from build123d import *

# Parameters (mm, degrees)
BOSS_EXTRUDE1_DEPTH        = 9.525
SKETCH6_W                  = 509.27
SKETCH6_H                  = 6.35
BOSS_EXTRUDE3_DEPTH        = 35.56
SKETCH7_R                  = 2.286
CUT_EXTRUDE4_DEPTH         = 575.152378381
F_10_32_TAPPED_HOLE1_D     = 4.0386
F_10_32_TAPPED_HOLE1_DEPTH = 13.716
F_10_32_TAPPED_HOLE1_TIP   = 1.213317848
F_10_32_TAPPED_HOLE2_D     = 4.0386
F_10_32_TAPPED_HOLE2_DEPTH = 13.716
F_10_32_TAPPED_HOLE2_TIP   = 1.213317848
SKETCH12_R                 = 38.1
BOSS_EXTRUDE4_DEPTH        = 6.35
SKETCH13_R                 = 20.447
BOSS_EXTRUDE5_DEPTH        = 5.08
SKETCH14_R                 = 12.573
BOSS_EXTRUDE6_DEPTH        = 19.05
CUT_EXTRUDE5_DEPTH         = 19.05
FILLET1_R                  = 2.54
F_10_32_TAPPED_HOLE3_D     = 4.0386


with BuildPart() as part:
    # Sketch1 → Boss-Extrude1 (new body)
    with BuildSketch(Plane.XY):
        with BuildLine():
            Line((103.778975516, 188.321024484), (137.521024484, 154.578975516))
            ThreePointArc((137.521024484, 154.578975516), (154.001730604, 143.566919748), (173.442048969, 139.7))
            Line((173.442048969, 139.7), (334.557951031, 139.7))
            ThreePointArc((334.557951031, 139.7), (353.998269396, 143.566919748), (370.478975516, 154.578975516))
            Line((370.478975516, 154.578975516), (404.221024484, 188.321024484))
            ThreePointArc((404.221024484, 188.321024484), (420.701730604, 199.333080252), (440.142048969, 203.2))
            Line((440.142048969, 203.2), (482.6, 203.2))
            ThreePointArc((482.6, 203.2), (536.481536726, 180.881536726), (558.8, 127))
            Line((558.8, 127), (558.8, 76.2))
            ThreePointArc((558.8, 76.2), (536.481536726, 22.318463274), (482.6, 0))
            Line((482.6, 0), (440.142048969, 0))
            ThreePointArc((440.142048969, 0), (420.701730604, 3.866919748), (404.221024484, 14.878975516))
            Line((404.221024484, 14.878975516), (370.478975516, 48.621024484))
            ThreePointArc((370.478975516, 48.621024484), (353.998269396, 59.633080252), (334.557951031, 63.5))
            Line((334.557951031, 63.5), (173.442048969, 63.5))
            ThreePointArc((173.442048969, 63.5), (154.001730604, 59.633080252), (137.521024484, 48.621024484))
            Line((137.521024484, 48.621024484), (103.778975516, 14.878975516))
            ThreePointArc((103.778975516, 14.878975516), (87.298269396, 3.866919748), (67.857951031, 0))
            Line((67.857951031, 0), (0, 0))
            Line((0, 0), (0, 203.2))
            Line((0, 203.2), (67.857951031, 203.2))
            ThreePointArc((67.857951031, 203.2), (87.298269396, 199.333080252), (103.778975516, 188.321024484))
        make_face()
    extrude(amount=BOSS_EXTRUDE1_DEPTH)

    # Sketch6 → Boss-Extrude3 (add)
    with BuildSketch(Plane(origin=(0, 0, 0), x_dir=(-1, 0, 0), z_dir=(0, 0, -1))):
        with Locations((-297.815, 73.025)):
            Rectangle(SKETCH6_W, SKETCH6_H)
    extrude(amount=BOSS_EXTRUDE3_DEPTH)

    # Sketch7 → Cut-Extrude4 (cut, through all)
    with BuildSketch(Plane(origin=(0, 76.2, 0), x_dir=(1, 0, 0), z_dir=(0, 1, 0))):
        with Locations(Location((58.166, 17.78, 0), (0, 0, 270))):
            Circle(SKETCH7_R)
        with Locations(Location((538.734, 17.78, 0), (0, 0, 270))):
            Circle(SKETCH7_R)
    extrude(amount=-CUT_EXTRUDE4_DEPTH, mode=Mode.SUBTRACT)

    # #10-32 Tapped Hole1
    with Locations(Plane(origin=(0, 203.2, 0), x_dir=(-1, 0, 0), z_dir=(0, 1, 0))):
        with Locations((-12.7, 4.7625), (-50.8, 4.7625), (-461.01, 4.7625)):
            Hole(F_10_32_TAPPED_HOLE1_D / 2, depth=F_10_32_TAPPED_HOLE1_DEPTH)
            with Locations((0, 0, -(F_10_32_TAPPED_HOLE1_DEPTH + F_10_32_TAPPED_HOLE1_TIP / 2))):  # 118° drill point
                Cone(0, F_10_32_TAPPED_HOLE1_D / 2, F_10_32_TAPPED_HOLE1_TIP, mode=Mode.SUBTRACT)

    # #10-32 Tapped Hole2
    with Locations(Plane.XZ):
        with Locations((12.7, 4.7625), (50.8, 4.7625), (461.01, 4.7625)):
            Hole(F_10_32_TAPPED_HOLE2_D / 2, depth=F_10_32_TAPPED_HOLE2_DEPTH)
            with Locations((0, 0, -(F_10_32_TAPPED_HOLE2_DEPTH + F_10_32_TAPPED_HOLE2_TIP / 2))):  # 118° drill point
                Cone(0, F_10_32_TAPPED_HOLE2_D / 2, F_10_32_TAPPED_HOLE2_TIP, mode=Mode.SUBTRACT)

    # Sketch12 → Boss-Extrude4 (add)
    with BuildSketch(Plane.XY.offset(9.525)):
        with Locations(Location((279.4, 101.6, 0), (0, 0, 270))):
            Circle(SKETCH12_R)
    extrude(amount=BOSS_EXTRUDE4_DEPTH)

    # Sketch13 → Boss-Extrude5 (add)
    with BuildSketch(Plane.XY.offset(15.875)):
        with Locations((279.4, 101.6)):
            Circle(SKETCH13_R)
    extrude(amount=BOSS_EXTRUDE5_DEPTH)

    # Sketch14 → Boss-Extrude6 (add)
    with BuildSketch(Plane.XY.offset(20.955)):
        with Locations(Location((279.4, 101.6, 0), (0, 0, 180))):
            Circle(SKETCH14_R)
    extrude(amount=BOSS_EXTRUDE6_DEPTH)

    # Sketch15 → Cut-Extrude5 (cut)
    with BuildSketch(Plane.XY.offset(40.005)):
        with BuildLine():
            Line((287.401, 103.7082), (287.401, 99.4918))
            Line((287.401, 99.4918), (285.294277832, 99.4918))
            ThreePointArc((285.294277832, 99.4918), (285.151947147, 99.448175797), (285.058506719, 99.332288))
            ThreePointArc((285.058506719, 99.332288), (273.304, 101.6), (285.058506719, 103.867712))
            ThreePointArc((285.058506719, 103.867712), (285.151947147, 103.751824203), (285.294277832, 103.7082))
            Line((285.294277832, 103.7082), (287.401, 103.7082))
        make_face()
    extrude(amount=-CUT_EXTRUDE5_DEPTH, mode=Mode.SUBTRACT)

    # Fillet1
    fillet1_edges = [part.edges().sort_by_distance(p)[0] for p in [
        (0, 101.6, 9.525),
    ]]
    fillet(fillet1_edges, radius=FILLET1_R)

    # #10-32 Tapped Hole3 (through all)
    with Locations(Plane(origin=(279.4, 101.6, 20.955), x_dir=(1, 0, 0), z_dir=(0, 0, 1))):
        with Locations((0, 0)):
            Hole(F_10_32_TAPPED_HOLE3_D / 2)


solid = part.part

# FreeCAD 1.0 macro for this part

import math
import FreeCAD as App
import Part
import Sketcher
Q = App.Units.Quantity


def edges_at(feature, points):
    """Names of the edges that pass closest to the given points."""
    edges = feature.Shape.Edges
    near = lambda p: min(range(len(edges)), key=lambda i: edges[i].distToShape(Part.Vertex(*p))[0])
    return sorted({f"Edge{near(p) + 1}" for p in points})

doc = App.newDocument("Part")
body = doc.addObject("PartDesign::Body", "Body")

sketch1 = body.newObject("Sketcher::SketchObject", "Sketch")
sketch1.AttachmentSupport = (doc.getObject("XY_Plane"), [""])
sketch1.MapMode = "FlatFace"
sketch1.addGeometry(Part.LineSegment(App.Vector(138, 155, 0), App.Vector(104, 188, 0)), False)
sketch1.addGeometry(Part.ArcOfCircle(Part.Circle(App.Vector(68, 152, 0), App.Vector(0, 0, 1), 51), math.radians(45), math.radians(90)), False)
sketch1.addGeometry(Part.LineSegment(App.Vector(68, 203, 0), App.Vector(0, 203, 0)), False)
sketch1.addGeometry(Part.LineSegment(App.Vector(0, 203, 0), App.Vector(0, 0, 0)), False)
sketch1.addGeometry(Part.LineSegment(App.Vector(0, 0, 0), App.Vector(68, 0, 0)), False)
sketch1.addGeometry(Part.ArcOfCircle(Part.Circle(App.Vector(68, 51, 0), App.Vector(0, 0, 1), 51), math.radians(-90), math.radians(-45)), False)
sketch1.addGeometry(Part.LineSegment(App.Vector(104, 15, 0), App.Vector(138, 49, 0)), False)
sketch1.addGeometry(Part.ArcOfCircle(Part.Circle(App.Vector(173, 13, 0), App.Vector(0, 0, 1), 51), math.radians(90), math.radians(135)), False)
sketch1.addGeometry(Part.LineSegment(App.Vector(173, 64, 0), App.Vector(335, 64, 0)), False)
sketch1.addGeometry(Part.ArcOfCircle(Part.Circle(App.Vector(335, 13, 0), App.Vector(0, 0, 1), 51), math.radians(45), math.radians(90)), False)
sketch1.addGeometry(Part.LineSegment(App.Vector(370, 49, 0), App.Vector(404, 15, 0)), False)
sketch1.addGeometry(Part.ArcOfCircle(Part.Circle(App.Vector(440, 51, 0), App.Vector(0, 0, 1), 51), math.radians(-135), math.radians(-90)), False)
sketch1.addGeometry(Part.LineSegment(App.Vector(440, 0, 0), App.Vector(483, 0, 0)), False)
sketch1.addGeometry(Part.ArcOfCircle(Part.Circle(App.Vector(483, 76, 0), App.Vector(0, 0, 1), 76), math.radians(-90), math.radians(0)), False)
sketch1.addGeometry(Part.LineSegment(App.Vector(559, 76, 0), App.Vector(559, 127, 0)), False)
sketch1.addGeometry(Part.ArcOfCircle(Part.Circle(App.Vector(483, 127, 0), App.Vector(0, 0, 1), 76), math.radians(0), math.radians(90)), False)
sketch1.addGeometry(Part.LineSegment(App.Vector(483, 203, 0), App.Vector(440, 203, 0)), False)
sketch1.addGeometry(Part.ArcOfCircle(Part.Circle(App.Vector(440, 152, 0), App.Vector(0, 0, 1), 51), math.radians(90), math.radians(135)), False)
sketch1.addGeometry(Part.LineSegment(App.Vector(404, 188, 0), App.Vector(370, 155, 0)), False)
sketch1.addGeometry(Part.ArcOfCircle(Part.Circle(App.Vector(335, 190, 0), App.Vector(0, 0, 1), 51), math.radians(-90), math.radians(-45)), False)
sketch1.addGeometry(Part.LineSegment(App.Vector(335, 140, 0), App.Vector(173, 140, 0)), False)
sketch1.addGeometry(Part.ArcOfCircle(Part.Circle(App.Vector(173, 190, 0), App.Vector(0, 0, 1), 51), math.radians(-135), math.radians(-90)), False)
sketch1.addConstraint(Sketcher.Constraint("Tangent", 0, 2, 1, 1))
sketch1.addConstraint(Sketcher.Constraint("Tangent", 1, 2, 2, 1))
sketch1.addConstraint(Sketcher.Constraint("Coincident", 2, 2, 3, 1))
sketch1.addConstraint(Sketcher.Constraint("Coincident", 3, 2, 4, 1))
sketch1.addConstraint(Sketcher.Constraint("Tangent", 4, 2, 5, 1))
sketch1.addConstraint(Sketcher.Constraint("Tangent", 5, 2, 6, 1))
sketch1.addConstraint(Sketcher.Constraint("Tangent", 6, 2, 7, 2))
sketch1.addConstraint(Sketcher.Constraint("Tangent", 7, 1, 8, 1))
sketch1.addConstraint(Sketcher.Constraint("Tangent", 8, 2, 9, 2))
sketch1.addConstraint(Sketcher.Constraint("Tangent", 9, 1, 10, 1))
sketch1.addConstraint(Sketcher.Constraint("Tangent", 10, 2, 11, 1))
sketch1.addConstraint(Sketcher.Constraint("Tangent", 11, 2, 12, 1))
sketch1.addConstraint(Sketcher.Constraint("Tangent", 12, 2, 13, 1))
sketch1.addConstraint(Sketcher.Constraint("Tangent", 13, 2, 14, 1))
sketch1.addConstraint(Sketcher.Constraint("Tangent", 14, 2, 15, 1))
sketch1.addConstraint(Sketcher.Constraint("Tangent", 15, 2, 16, 1))
sketch1.addConstraint(Sketcher.Constraint("Tangent", 16, 2, 17, 1))
sketch1.addConstraint(Sketcher.Constraint("Tangent", 17, 2, 18, 1))
sketch1.addConstraint(Sketcher.Constraint("Tangent", 18, 2, 19, 2))
sketch1.addConstraint(Sketcher.Constraint("Tangent", 19, 1, 20, 1))
sketch1.addConstraint(Sketcher.Constraint("Tangent", 20, 2, 21, 2))
sketch1.addConstraint(Sketcher.Constraint("Tangent", 21, 1, 0, 1))
sketch1.addConstraint(Sketcher.Constraint("Horizontal", 2))
sketch1.addConstraint(Sketcher.Constraint("Vertical", 3))
sketch1.addConstraint(Sketcher.Constraint("Horizontal", 4))
sketch1.addConstraint(Sketcher.Constraint("Horizontal", 8))
sketch1.addConstraint(Sketcher.Constraint("Horizontal", 12))
sketch1.addConstraint(Sketcher.Constraint("Vertical", 14))
sketch1.addConstraint(Sketcher.Constraint("Horizontal", 16))
sketch1.addConstraint(Sketcher.Constraint("Horizontal", 20))
sketch1.addConstraint(Sketcher.Constraint("Coincident", 3, 2, -1, 1))
sketch1.addConstraint(Sketcher.Constraint("Equal", 1, 5))
sketch1.addConstraint(Sketcher.Constraint("Equal", 5, 7))
sketch1.addConstraint(Sketcher.Constraint("Equal", 7, 9))
sketch1.addConstraint(Sketcher.Constraint("Equal", 9, 11))
sketch1.addConstraint(Sketcher.Constraint("Equal", 13, 15))
sketch1.addConstraint(Sketcher.Constraint("Equal", 11, 17))
sketch1.addConstraint(Sketcher.Constraint("Equal", 17, 19))
sketch1.addConstraint(Sketcher.Constraint("Equal", 19, 21))
sketch1.addConstraint(Sketcher.Constraint("PointOnObject", 11, 2, -1))
sketch1.addConstraint(Sketcher.Constraint("Perpendicular", 0, 6))
sketch1.addConstraint(Sketcher.Constraint("Perpendicular", 6, 10))
sketch1.addConstraint(Sketcher.Constraint("Perpendicular", 10, 18))
sketch1.addConstraint(Sketcher.Constraint("Horizontal", 1, 3, 17, 3))
sketch1.addConstraint(Sketcher.Constraint("Horizontal", 6, 2, 9, 1))
sketch1.addConstraint(Sketcher.Constraint("Vertical", 1, 3, 5, 3))
sketch1.addConstraint(Sketcher.Constraint("Vertical", 11, 3, 17, 3))
sketch1.addConstraint(Sketcher.Constraint("Vertical", 9, 3, 19, 3))
sketch1.addConstraint(Sketcher.Constraint("Radius", 1, Q("2 in")))
sketch1.addConstraint(Sketcher.Constraint("Radius", 13, Q("3 in")))
sketch1.addConstraint(Sketcher.Constraint("DistanceY", 3, 2, 3, 1, Q("8 in")))
sketch1.addConstraint(Sketcher.Constraint("DistanceX", -1, 1, 13, 3, Q("19 in")))
sketch1.addConstraint(Sketcher.Constraint("DistanceY", 9, 3, 19, 3, Q("7 in")))
sketch1.addConstraint(Sketcher.Constraint("DistanceX", 5, 3, 9, 3, Q("10.5 in")))
sketch1.addConstraint(Sketcher.Constraint("DistanceX", 2, 2, 2, 1, Q("67.857951 mm")))
pad1 = body.newObject("PartDesign::Pad", "Pad")
pad1.Profile = sketch1
pad1.Length = Q("0.375 in")

sketch2 = body.newObject("Sketcher::SketchObject", "Sketch001")
sketch2.AttachmentSupport = (doc.getObject("XY_Plane"), [""])
sketch2.MapMode = "FlatFace"
sketch2.addGeometry(Part.LineSegment(App.Vector(552, 76, 0), App.Vector(552, 70, 0)), False)
sketch2.addGeometry(Part.LineSegment(App.Vector(552, 70, 0), App.Vector(43, 70, 0)), False)
sketch2.addGeometry(Part.LineSegment(App.Vector(43, 70, 0), App.Vector(43, 76, 0)), False)
sketch2.addGeometry(Part.LineSegment(App.Vector(43, 76, 0), App.Vector(552, 76, 0)), False)
sketch2.addConstraint(Sketcher.Constraint("Coincident", 0, 2, 1, 1))
sketch2.addConstraint(Sketcher.Constraint("Coincident", 1, 2, 2, 1))
sketch2.addConstraint(Sketcher.Constraint("Coincident", 2, 2, 3, 1))
sketch2.addConstraint(Sketcher.Constraint("Coincident", 3, 2, 0, 1))
sketch2.addConstraint(Sketcher.Constraint("Vertical", 0))
sketch2.addConstraint(Sketcher.Constraint("Horizontal", 1))
sketch2.addConstraint(Sketcher.Constraint("Vertical", 2))
sketch2.addConstraint(Sketcher.Constraint("Horizontal", 3))
sketch2.addConstraint(Sketcher.Constraint("DistanceY", -1, 1, 2, 2, Q("3 in")))
sketch2.addConstraint(Sketcher.Constraint("DistanceX", 1, 2, 1, 1, Q("20.05 in")))
sketch2.addConstraint(Sketcher.Constraint("DistanceY", 0, 2, 0, 1, Q("0.25 in")))
sketch2.addConstraint(Sketcher.Constraint("DistanceX", -1, 1, 1, 2, Q("1.7 in")))
pad2 = body.newObject("PartDesign::Pad", "Pad001")
pad2.Profile = sketch2
pad2.Length = Q("1.4 in")
pad2.Reversed = True

sketch3 = body.newObject("Sketcher::SketchObject", "Sketch002")
sketch3.AttachmentSupport = (doc.getObject("XZ_Plane"), [""])
sketch3.MapMode = "FlatFace"
sketch3.AttachmentOffset = App.Placement(App.Vector(0, 0, -3 * 25.4), App.Rotation())
sketch3.addGeometry(Part.Circle(App.Vector(58.2, -17.8, 0), App.Vector(0, 0, 1), 2.3), False)
sketch3.addGeometry(Part.Circle(App.Vector(538.7, -17.8, 0), App.Vector(0, 0, 1), 2.3), False)
sketch3.addConstraint(Sketcher.Constraint("Equal", 0, 1))
sketch3.addConstraint(Sketcher.Constraint("Horizontal", 0, 3, 1, 3))
sketch3.addConstraint(Sketcher.Constraint("Diameter", 0, Q("0.18 in")))
sketch3.addConstraint(Sketcher.Constraint("DistanceY", 0, 3, -1, 1, Q("0.7 in")))
sketch3.addConstraint(Sketcher.Constraint("DistanceX", -1, 1, 0, 3, Q("2.29 in")))
sketch3.addConstraint(Sketcher.Constraint("DistanceX", -1, 1, 1, 3, Q("21.21 in")))
pocket1 = body.newObject("PartDesign::Pocket", "Pocket")
pocket1.Profile = sketch3
pocket1.Type = "ThroughAll"
pocket1.Reversed = True

sketch4 = body.newObject("Sketcher::SketchObject", "Sketch003")
sketch4.AttachmentSupport = (doc.getObject("XZ_Plane"), [""])
sketch4.MapMode = "FlatFace"
sketch4.AttachmentOffset = App.Placement(App.Vector(0, 0, -8 * 25.4), App.Rotation())
sketch4.addGeometry(Part.Circle(App.Vector(12.7, 4.8, 0), App.Vector(0, 0, 1), 2), False)
sketch4.addGeometry(Part.Circle(App.Vector(50.8, 4.8, 0), App.Vector(0, 0, 1), 2), False)
sketch4.addGeometry(Part.Circle(App.Vector(461, 4.8, 0), App.Vector(0, 0, 1), 2), False)
sketch4.addConstraint(Sketcher.Constraint("Equal", 0, 1))
sketch4.addConstraint(Sketcher.Constraint("Equal", 1, 2))
sketch4.addConstraint(Sketcher.Constraint("Horizontal", 0, 3, 1, 3))
sketch4.addConstraint(Sketcher.Constraint("Horizontal", 1, 3, 2, 3))
sketch4.addConstraint(Sketcher.Constraint("Diameter", 0, Q("0.159 in")))
sketch4.addConstraint(Sketcher.Constraint("DistanceX", -1, 1, 1, 3, Q("2 in")))
sketch4.addConstraint(Sketcher.Constraint("DistanceX", -1, 1, 0, 3, Q("0.5 in")))
sketch4.addConstraint(Sketcher.Constraint("DistanceX", -1, 1, 2, 3, Q("18.15 in")))
sketch4.addConstraint(Sketcher.Constraint("DistanceY", -1, 1, 0, 3, Q("0.1875 in")))
doc.recompute()
hole = body.newObject("PartDesign::Hole", "Hole")
hole.Profile = sketch4
hole.ThreadType = "None"
hole.Diameter = Q("0.159 in")
hole.DepthType = "Dimension"
hole.Depth = Q("0.54 in")
hole.DrillPoint = "Angled"
hole.DrillPointAngle = 118
hole.Reversed = True

sketch5 = body.newObject("Sketcher::SketchObject", "Sketch004")
sketch5.AttachmentSupport = (doc.getObject("XZ_Plane"), [""])
sketch5.MapMode = "FlatFace"
sketch5.addGeometry(Part.Circle(App.Vector(12.7, 4.8, 0), App.Vector(0, 0, 1), 2), False)
sketch5.addGeometry(Part.Circle(App.Vector(50.8, 4.8, 0), App.Vector(0, 0, 1), 2), False)
sketch5.addGeometry(Part.Circle(App.Vector(461, 4.8, 0), App.Vector(0, 0, 1), 2), False)
sketch5.addConstraint(Sketcher.Constraint("Equal", 0, 1))
sketch5.addConstraint(Sketcher.Constraint("Equal", 1, 2))
sketch5.addConstraint(Sketcher.Constraint("Horizontal", 0, 3, 1, 3))
sketch5.addConstraint(Sketcher.Constraint("Horizontal", 1, 3, 2, 3))
sketch5.addConstraint(Sketcher.Constraint("Diameter", 0, Q("0.159 in")))
sketch5.addConstraint(Sketcher.Constraint("DistanceX", -1, 1, 1, 3, Q("2 in")))
sketch5.addConstraint(Sketcher.Constraint("DistanceX", -1, 1, 0, 3, Q("0.5 in")))
sketch5.addConstraint(Sketcher.Constraint("DistanceX", -1, 1, 2, 3, Q("18.15 in")))
sketch5.addConstraint(Sketcher.Constraint("DistanceY", -1, 1, 0, 3, Q("0.1875 in")))
doc.recompute()
hole2 = body.newObject("PartDesign::Hole", "Hole001")
hole2.Profile = sketch5
hole2.ThreadType = "None"
hole2.Diameter = Q("0.159 in")
hole2.DepthType = "Dimension"
hole2.Depth = Q("0.54 in")
hole2.DrillPoint = "Angled"
hole2.DrillPointAngle = 118

sketch6 = body.newObject("Sketcher::SketchObject", "Sketch005")
sketch6.AttachmentSupport = (doc.getObject("XY_Plane"), [""])
sketch6.MapMode = "FlatFace"
sketch6.AttachmentOffset = App.Placement(App.Vector(0, 0, 0.375 * 25.4), App.Rotation())
sketch6.addGeometry(Part.Circle(App.Vector(279, 102, 0), App.Vector(0, 0, 1), 38), False)
sketch6.addConstraint(Sketcher.Constraint("Diameter", 0, Q("3 in")))
sketch6.addConstraint(Sketcher.Constraint("DistanceX", -1, 1, 0, 3, Q("11 in")))
sketch6.addConstraint(Sketcher.Constraint("DistanceY", -1, 1, 0, 3, Q("4 in")))
pad3 = body.newObject("PartDesign::Pad", "Pad002")
pad3.Profile = sketch6
pad3.Length = Q("0.25 in")

sketch7 = body.newObject("Sketcher::SketchObject", "Sketch006")
sketch7.AttachmentSupport = (doc.getObject("XY_Plane"), [""])
sketch7.MapMode = "FlatFace"
sketch7.AttachmentOffset = App.Placement(App.Vector(0, 0, 0.625 * 25.4), App.Rotation())
sketch7.addGeometry(Part.Circle(App.Vector(279, 102, 0), App.Vector(0, 0, 1), 20), False)
sketch7.addConstraint(Sketcher.Constraint("Diameter", 0, Q("1.61 in")))
sketch7.addConstraint(Sketcher.Constraint("DistanceX", -1, 1, 0, 3, Q("11 in")))
sketch7.addConstraint(Sketcher.Constraint("DistanceY", -1, 1, 0, 3, Q("4 in")))
pad4 = body.newObject("PartDesign::Pad", "Pad003")
pad4.Profile = sketch7
pad4.Length = Q("0.2 in")

sketch8 = body.newObject("Sketcher::SketchObject", "Sketch007")
sketch8.AttachmentSupport = (doc.getObject("XY_Plane"), [""])
sketch8.MapMode = "FlatFace"
sketch8.AttachmentOffset = App.Placement(App.Vector(0, 0, 0.825 * 25.4), App.Rotation())
sketch8.addGeometry(Part.Circle(App.Vector(279, 102, 0), App.Vector(0, 0, 1), 13), False)
sketch8.addConstraint(Sketcher.Constraint("Diameter", 0, Q("0.99 in")))
sketch8.addConstraint(Sketcher.Constraint("DistanceX", -1, 1, 0, 3, Q("11 in")))
sketch8.addConstraint(Sketcher.Constraint("DistanceY", -1, 1, 0, 3, Q("4 in")))
pad5 = body.newObject("PartDesign::Pad", "Pad004")
pad5.Profile = sketch8
pad5.Length = Q("0.75 in")

sketch9 = body.newObject("Sketcher::SketchObject", "Sketch008")
sketch9.AttachmentSupport = (doc.getObject("XY_Plane"), [""])
sketch9.MapMode = "FlatFace"
sketch9.AttachmentOffset = App.Placement(App.Vector(0, 0, 1.575 * 25.4), App.Rotation())
sketch9.addGeometry(Part.LineSegment(App.Vector(287.4, 99.49, 0), App.Vector(287.4, 103.71, 0)), False)
sketch9.addGeometry(Part.LineSegment(App.Vector(287.4, 103.71, 0), App.Vector(285.29, 103.71, 0)), False)
sketch9.addGeometry(Part.ArcOfCircle(Part.Circle(App.Vector(285.29, 103.96, 0), App.Vector(0, 0, 1), 0.25), math.radians(-158), math.radians(-90)), False)
sketch9.addGeometry(Part.ArcOfCircle(Part.Circle(App.Vector(279.4, 101.6, 0), App.Vector(0, 0, 1), 6.1), math.radians(22), math.radians(338)), False)
sketch9.addGeometry(Part.ArcOfCircle(Part.Circle(App.Vector(285.29, 99.24, 0), App.Vector(0, 0, 1), 0.25), math.radians(90), math.radians(158)), False)
sketch9.addGeometry(Part.LineSegment(App.Vector(285.29, 99.49, 0), App.Vector(287.4, 99.49, 0)), False)
sketch9.addConstraint(Sketcher.Constraint("Coincident", 0, 2, 1, 1))
sketch9.addConstraint(Sketcher.Constraint("Tangent", 1, 2, 2, 2))
sketch9.addConstraint(Sketcher.Constraint("Tangent", 2, 1, 3, 1))
sketch9.addConstraint(Sketcher.Constraint("Tangent", 3, 2, 4, 2))
sketch9.addConstraint(Sketcher.Constraint("Tangent", 4, 1, 5, 1))
sketch9.addConstraint(Sketcher.Constraint("Coincident", 5, 2, 0, 1))
sketch9.addConstraint(Sketcher.Constraint("Vertical", 0))
sketch9.addConstraint(Sketcher.Constraint("Horizontal", 1))
sketch9.addConstraint(Sketcher.Constraint("Horizontal", 5))
sketch9.addConstraint(Sketcher.Constraint("Equal", 2, 4))
sketch9.addConstraint(Sketcher.Constraint("Vertical", 2, 3, 4, 3))
sketch9.addConstraint(Sketcher.Constraint("Radius", 2, Q("0.01 in")))
sketch9.addConstraint(Sketcher.Constraint("Radius", 3, Q("0.24 in")))
sketch9.addConstraint(Sketcher.Constraint("DistanceX", -1, 1, 3, 3, Q("11 in")))
sketch9.addConstraint(Sketcher.Constraint("DistanceY", -1, 1, 3, 3, Q("4 in")))
sketch9.addConstraint(Sketcher.Constraint("DistanceY", 0, 1, 0, 2, Q("0.166 in")))
sketch9.addConstraint(Sketcher.Constraint("DistanceX", -1, 1, 0, 2, Q("11.315 in")))
pocket2 = body.newObject("PartDesign::Pocket", "Pocket001")
pocket2.Profile = sketch9
pocket2.Length = Q("0.75 in")
doc.recompute()

fillet = body.newObject("PartDesign::Fillet", "Fillet")
fillet.Base = (pocket2, edges_at(pocket2, [(0, 101.6, 9.525)]))
fillet.Radius = Q("0.1 in")

sketch10 = body.newObject("Sketcher::SketchObject", "Sketch009")
sketch10.AttachmentSupport = (doc.getObject("XY_Plane"), [""])
sketch10.MapMode = "FlatFace"
sketch10.AttachmentOffset = App.Placement(App.Vector(0, 0, 0.825 * 25.4), App.Rotation())
sketch10.addGeometry(Part.Circle(App.Vector(279.4, 101.6, 0), App.Vector(0, 0, 1), 2), False)
sketch10.addConstraint(Sketcher.Constraint("Diameter", 0, Q("0.159 in")))
sketch10.addConstraint(Sketcher.Constraint("DistanceX", -1, 1, 0, 3, Q("11 in")))
sketch10.addConstraint(Sketcher.Constraint("DistanceY", -1, 1, 0, 3, Q("4 in")))
doc.recompute()
hole3 = body.newObject("PartDesign::Hole", "Hole002")
hole3.Profile = sketch10
hole3.ThreadType = "None"
hole3.Diameter = Q("0.159 in")
hole3.DepthType = "ThroughAll"

doc.recompute()
